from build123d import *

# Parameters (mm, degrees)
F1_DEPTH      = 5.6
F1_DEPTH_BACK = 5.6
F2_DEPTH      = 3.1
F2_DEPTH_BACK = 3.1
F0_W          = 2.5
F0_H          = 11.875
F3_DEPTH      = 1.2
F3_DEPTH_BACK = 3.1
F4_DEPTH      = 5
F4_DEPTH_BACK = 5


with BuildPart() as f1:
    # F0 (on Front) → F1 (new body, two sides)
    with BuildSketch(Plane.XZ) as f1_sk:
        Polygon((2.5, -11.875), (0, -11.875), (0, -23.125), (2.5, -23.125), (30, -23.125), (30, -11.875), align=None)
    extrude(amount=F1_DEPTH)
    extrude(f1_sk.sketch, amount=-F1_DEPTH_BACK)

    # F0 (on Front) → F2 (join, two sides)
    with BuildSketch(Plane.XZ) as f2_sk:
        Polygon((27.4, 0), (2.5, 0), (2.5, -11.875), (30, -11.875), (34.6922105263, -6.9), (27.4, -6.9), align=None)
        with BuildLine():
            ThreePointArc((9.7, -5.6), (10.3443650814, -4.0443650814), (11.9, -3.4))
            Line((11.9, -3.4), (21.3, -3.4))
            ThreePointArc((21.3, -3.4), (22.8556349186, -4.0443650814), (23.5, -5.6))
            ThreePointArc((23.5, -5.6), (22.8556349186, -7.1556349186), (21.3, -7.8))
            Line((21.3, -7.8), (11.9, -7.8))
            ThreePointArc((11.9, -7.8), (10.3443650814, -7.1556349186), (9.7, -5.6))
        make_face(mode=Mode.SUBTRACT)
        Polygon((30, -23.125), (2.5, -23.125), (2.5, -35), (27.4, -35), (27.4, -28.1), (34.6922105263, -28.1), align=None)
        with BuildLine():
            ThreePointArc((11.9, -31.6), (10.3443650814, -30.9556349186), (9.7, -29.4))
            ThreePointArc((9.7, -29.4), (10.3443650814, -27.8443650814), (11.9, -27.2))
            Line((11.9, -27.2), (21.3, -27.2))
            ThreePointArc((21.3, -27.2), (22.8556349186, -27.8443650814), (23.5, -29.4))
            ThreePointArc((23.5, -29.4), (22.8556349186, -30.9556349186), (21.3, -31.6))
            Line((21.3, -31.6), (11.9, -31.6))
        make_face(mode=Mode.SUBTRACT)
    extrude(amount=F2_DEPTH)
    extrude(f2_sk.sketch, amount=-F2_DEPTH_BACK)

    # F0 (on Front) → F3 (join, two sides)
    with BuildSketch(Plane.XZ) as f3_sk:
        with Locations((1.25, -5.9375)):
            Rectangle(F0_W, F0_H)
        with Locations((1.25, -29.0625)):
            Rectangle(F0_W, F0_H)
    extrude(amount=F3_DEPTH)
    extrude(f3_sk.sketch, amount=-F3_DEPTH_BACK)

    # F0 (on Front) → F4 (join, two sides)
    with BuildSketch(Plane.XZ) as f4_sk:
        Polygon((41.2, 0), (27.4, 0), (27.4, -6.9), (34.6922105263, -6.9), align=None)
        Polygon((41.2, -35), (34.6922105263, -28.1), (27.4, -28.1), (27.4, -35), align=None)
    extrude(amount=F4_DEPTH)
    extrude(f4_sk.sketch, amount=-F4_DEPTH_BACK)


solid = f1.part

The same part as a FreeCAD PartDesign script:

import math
import FreeCAD as App
import Part
import Sketcher
Q = App.Units.Quantity

doc = App.newDocument("Part")
params = doc.addObject("Spreadsheet::Sheet", "Params")
for row, (alias, value) in enumerate([
    ("sketch1_width", "30 mm"),
    ("sketch1_height", "11.25 mm"),
    ("pad1_length", "5.6 mm"),
    ("pad1_length2", "5.6 mm"),
    ("sketch2_radius", "2.2 mm"),
    ("sketch2_width", "24.9 mm"),
    ("sketch2_width2", "27.5 mm"),
    ("sketch2_width3", "9.4 mm"),
    ("sketch2_height", "6.9 mm"),
    ("pad2_length", "3.1 mm"),
    ("pad2_length2", "3.1 mm"),
    ("sketch3_width", "2.5 mm"),
    ("pad3_length", "1.2 mm"),
    ("pad3_length2", "3.1 mm"),
    ("sketch4_width", "13.8 mm"),
    ("sketch4_height", "6.9 mm"),
    ("pad4_length", "5 mm"),
    ("pad4_length2", "5 mm"),
], start=1):
    params.set(f"A{row}", alias)
    params.set(f"B{row}", "=" + value)
    params.setAlias(f"B{row}", alias)

body = doc.addObject("PartDesign::Body", "Body")

sketch1 = doc.addObject("Sketcher::SketchObject", "Sketch")
body.addObject(sketch1)
sketch1.AttachmentSupport = (doc.XZ_Plane, [""])
sketch1.MapMode = "FlatFace"
sketch1.addGeometry(Part.LineSegment(App.Vector(0, -12, 0), App.Vector(0, -23, 0)), False)
sketch1.addGeometry(Part.LineSegment(App.Vector(0, -23, 0), App.Vector(30, -23, 0)), False)
sketch1.addGeometry(Part.LineSegment(App.Vector(30, -23, 0), App.Vector(30, -12, 0)), False)
sketch1.addGeometry(Part.LineSegment(App.Vector(30, -12, 0), App.Vector(0, -12, 0)), False)
sketch1.addConstraint(Sketcher.Constraint("Coincident", 0, 2, 1, 1))
sketch1.addConstraint(Sketcher.Constraint("Coincident", 1, 2, 2, 1))
sketch1.addConstraint(Sketcher.Constraint("Coincident", 2, 2, 3, 1))
sketch1.addConstraint(Sketcher.Constraint("Coincident", 3, 2, 0, 1))
sketch1.addConstraint(Sketcher.Constraint("Vertical", 0))
sketch1.addConstraint(Sketcher.Constraint("Horizontal", 1))
sketch1.addConstraint(Sketcher.Constraint("Vertical", 2))
sketch1.addConstraint(Sketcher.Constraint("Horizontal", 3))
sketch1.addConstraint(Sketcher.Constraint("PointOnObject", 0, 2, -2))
sketch1.addConstraint(Sketcher.Constraint("DistanceX", 1, 1, 1, 2, Q("30 mm")))
sketch1.addConstraint(Sketcher.Constraint("DistanceY", 0, 2, 0, 1, Q("11.25 mm")))
sketch1.addConstraint(Sketcher.Constraint("DistanceY", 0, 2, -1, 1, Q("23.125 mm")))
sketch1.setExpression("Constraints[9]", "Params.sketch1_width")
sketch1.setExpression("Constraints[10]", "Params.sketch1_height")
pad1 = doc.addObject("PartDesign::Pad", "Pad")
body.addObject(pad1)
pad1.Profile = sketch1
pad1.Type = "TwoLengths"
pad1.setExpression("Length", "Params.pad1_length")
pad1.setExpression("Length2", "Params.pad1_length2")

sketch2 = doc.addObject("Sketcher::SketchObject", "Sketch001")
body.addObject(sketch2)
sketch2.AttachmentSupport = (doc.XZ_Plane, [""])
sketch2.MapMode = "FlatFace"
sketch2.addGeometry(Part.LineSegment(App.Vector(27.4, 0, 0), App.Vector(2.5, 0, 0)), False)
sketch2.addGeometry(Part.LineSegment(App.Vector(2.5, 0, 0), App.Vector(2.5, -11.9, 0)), False)
sketch2.addGeometry(Part.LineSegment(App.Vector(2.5, -11.9, 0), App.Vector(30, -11.9, 0)), False)
sketch2.addGeometry(Part.LineSegment(App.Vector(30, -11.9, 0), App.Vector(34.7, -6.9, 0)), False)
sketch2.addGeometry(Part.LineSegment(App.Vector(34.7, -6.9, 0), App.Vector(27.4, -6.9, 0)), False)
sketch2.addGeometry(Part.LineSegment(App.Vector(27.4, -6.9, 0), App.Vector(27.4, 0, 0)), False)
sketch2.addGeometry(Part.ArcOfCircle(Part.Circle(App.Vector(11.9, -5.6, 0), App.Vector(0, 0, 1), 2.2), math.radians(180), math.radians(270)), False)
sketch2.addGeometry(Part.ArcOfCircle(Part.Circle(App.Vector(11.9, -5.6, 0), App.Vector(0, 0, 1), 2.2), math.radians(90), math.radians(180)), False)
sketch2.addGeometry(Part.LineSegment(App.Vector(11.9, -3.4, 0), App.Vector(21.3, -3.4, 0)), False)
sketch2.addGeometry(Part.ArcOfCircle(Part.Circle(App.Vector(21.3, -5.6, 0), App.Vector(0, 0, 1), 2.2), math.radians(0), math.radians(90)), False)
sketch2.addGeometry(Part.ArcOfCircle(Part.Circle(App.Vector(21.3, -5.6, 0), App.Vector(0, 0, 1), 2.2), math.radians(-90), math.radians(0)), False)
sketch2.addGeometry(Part.LineSegment(App.Vector(21.3, -7.8, 0), App.Vector(11.9, -7.8, 0)), False)
sketch2.addGeometry(Part.LineSegment(App.Vector(30, -23.1, 0), App.Vector(2.5, -23.1, 0)), False)
sketch2.addGeometry(Part.LineSegment(App.Vector(2.5, -23.1, 0), App.Vector(2.5, -35, 0)), False)
sketch2.addGeometry(Part.LineSegment(App.Vector(2.5, -35, 0), App.Vector(27.4, -35, 0)), False)
sketch2.addGeometry(Part.LineSegment(App.Vector(27.4, -35, 0), App.Vector(27.4, -28.1, 0)), False)
sketch2.addGeometry(Part.LineSegment(App.Vector(27.4, -28.1, 0), App.Vector(34.7, -28.1, 0)), False)
sketch2.addGeometry(Part.LineSegment(App.Vector(34.7, -28.1, 0), App.Vector(30, -23.1, 0)), False)
sketch2.addGeometry(Part.LineSegment(App.Vector(21.3, -31.6, 0), App.Vector(11.9, -31.6, 0)), False)
sketch2.addGeometry(Part.ArcOfCircle(Part.Circle(App.Vector(11.9, -29.4, 0), App.Vector(0, 0, 1), 2.2), math.radians(180), math.radians(270)), False)
sketch2.addGeometry(Part.ArcOfCircle(Part.Circle(App.Vector(11.9, -29.4, 0), App.Vector(0, 0, 1), 2.2), math.radians(90), math.radians(180)), False)
sketch2.addGeometry(Part.LineSegment(App.Vector(11.9, -27.2, 0), App.Vector(21.3, -27.2, 0)), False)
sketch2.addGeometry(Part.ArcOfCircle(Part.Circle(App.Vector(21.3, -29.4, 0), App.Vector(0, 0, 1), 2.2), math.radians(0), math.radians(90)), False)
sketch2.addGeometry(Part.ArcOfCircle(Part.Circle(App.Vector(21.3, -29.4, 0), App.Vector(0, 0, 1), 2.2), math.radians(-90), math.radians(0)), False)
sketch2.addConstraint(Sketcher.Constraint("Coincident", 0, 2, 1, 1))
sketch2.addConstraint(Sketcher.Constraint("Coincident", 1, 2, 2, 1))
sketch2.addConstraint(Sketcher.Constraint("Coincident", 2, 2, 3, 1))
sketch2.addConstraint(Sketcher.Constraint("Coincident", 3, 2, 4, 1))
sketch2.addConstraint(Sketcher.Constraint("Coincident", 4, 2, 5, 1))
sketch2.addConstraint(Sketcher.Constraint("Coincident", 5, 2, 0, 1))
sketch2.addConstraint(Sketcher.Constraint("Tangent", 6, 1, 7, 2))
sketch2.addConstraint(Sketcher.Constraint("Tangent", 7, 1, 8, 1))
sketch2.addConstraint(Sketcher.Constraint("Tangent", 8, 2, 9, 2))
sketch2.addConstraint(Sketcher.Constraint("Tangent", 9, 1, 10, 2))
sketch2.addConstraint(Sketcher.Constraint("Tangent", 10, 1, 11, 1))
sketch2.addConstraint(Sketcher.Constraint("Tangent", 11, 2, 6, 2))
sketch2.addConstraint(Sketcher.Constraint("Coincident", 12, 2, 13, 1))
sketch2.addConstraint(Sketcher.Constraint("Coincident", 13, 2, 14, 1))
sketch2.addConstraint(Sketcher.Constraint("Coincident", 14, 2, 15, 1))
sketch2.addConstraint(Sketcher.Constraint("Coincident", 15, 2, 16, 1))
sketch2.addConstraint(Sketcher.Constraint("Coincident", 16, 2, 17, 1))
sketch2.addConstraint(Sketcher.Constraint("Coincident", 17, 2, 12, 1))
sketch2.addConstraint(Sketcher.Constraint("Tangent", 18, 2, 19, 2))
sketch2.addConstraint(Sketcher.Constraint("Tangent", 19, 1, 20, 2))
sketch2.addConstraint(Sketcher.Constraint("Tangent", 20, 1, 21, 1))
sketch2.addConstraint(Sketcher.Constraint("Tangent", 21, 2, 22, 2))
sketch2.addConstraint(Sketcher.Constraint("Tangent", 22, 1, 23, 2))
sketch2.addConstraint(Sketcher.Constraint("Tangent", 23, 1, 18, 1))
sketch2.addConstraint(Sketcher.Constraint("Horizontal", 0))
sketch2.addConstraint(Sketcher.Constraint("Vertical", 1))
sketch2.addConstraint(Sketcher.Constraint("Horizontal", 2))
sketch2.addConstraint(Sketcher.Constraint("Horizontal", 4))
sketch2.addConstraint(Sketcher.Constraint("Vertical", 5))
sketch2.addConstraint(Sketcher.Constraint("Horizontal", 8))
sketch2.addConstraint(Sketcher.Constraint("Horizontal", 11))
sketch2.addConstraint(Sketcher.Constraint("Horizontal", 12))
sketch2.addConstraint(Sketcher.Constraint("Vertical", 13))
sketch2.addConstraint(Sketcher.Constraint("Horizontal", 14))
sketch2.addConstraint(Sketcher.Constraint("Vertical", 15))
sketch2.addConstraint(Sketcher.Constraint("Horizontal", 16))
sketch2.addConstraint(Sketcher.Constraint("Horizontal", 18))
sketch2.addConstraint(Sketcher.Constraint("Horizontal", 21))
sketch2.addConstraint(Sketcher.Constraint("Equal", 6, 7))
sketch2.addConstraint(Sketcher.Constraint("Equal", 7, 9))
sketch2.addConstraint(Sketcher.Constraint("Equal", 10, 19))
sketch2.addConstraint(Sketcher.Constraint("Equal", 19, 20))
sketch2.addConstraint(Sketcher.Constraint("Equal", 20, 22))
sketch2.addConstraint(Sketcher.Constraint("PointOnObject", 0, 2, -1))
sketch2.addConstraint(Sketcher.Constraint("Horizontal", 10, 3, 6, 1))
sketch2.addConstraint(Sketcher.Constraint("Horizontal", 6, 1, 9, 1))
sketch2.addConstraint(Sketcher.Constraint("Horizontal", 23, 3, 19, 1))
sketch2.addConstraint(Sketcher.Constraint("Horizontal", 19, 1, 22, 1))
sketch2.addConstraint(Sketcher.Constraint("Vertical", 7, 3, 19, 3))
sketch2.addConstraint(Sketcher.Constraint("Vertical", 10, 3, 22, 3))
sketch2.addConstraint(Sketcher.Constraint("Vertical", 1, 2, 12, 2))
sketch2.addConstraint(Sketcher.Constraint("Vertical", 5, 2, 14, 2))
sketch2.addConstraint(Sketcher.Constraint("Vertical", 3, 2, 16, 2))
sketch2.addConstraint(Sketcher.Constraint("Vertical", 2, 2, 17, 2))
sketch2.addConstraint(Sketcher.Constraint("Equal", 1, 13))
sketch2.addConstraint(Sketcher.Constraint("Equal", 5, 15))
sketch2.addConstraint(Sketcher.Constraint("Radius", 6, Q("2.2 mm")))
sketch2.addConstraint(Sketcher.Constraint("DistanceX", 0, 2, 0, 1, Q("24.9 mm")))
sketch2.addConstraint(Sketcher.Constraint("DistanceX", 2, 1, 2, 2, Q("27.5 mm")))
sketch2.addConstraint(Sketcher.Constraint("DistanceX", 8, 1, 8, 2, Q("9.4 mm")))
sketch2.addConstraint(Sketcher.Constraint("DistanceY", 5, 1, 5, 2, Q("6.9 mm")))
sketch2.addConstraint(Sketcher.Constraint("DistanceX", -1, 1, 2, 2, Q("30 mm")))
sketch2.addConstraint(Sketcher.Constraint("DistanceY", 13, 2, -1, 1, Q("35 mm")))
sketch2.addConstraint(Sketcher.Constraint("DistanceX", -1, 1, 6, 3, Q("11.9 mm")))
sketch2.addConstraint(Sketcher.Constraint("DistanceY", 6, 3, -1, 1, Q("5.6 mm")))
sketch2.addConstraint(Sketcher.Constraint("DistanceY", 19, 3, -1, 1, Q("29.4 mm")))
sketch2.addConstraint(Sketcher.Constraint("DistanceY", 1, 2, 1, 1, Q("11.875 mm")))
sketch2.addConstraint(Sketcher.Constraint("DistanceX", 4, 2, 4, 1, Q("7.292211 mm")))
sketch2.setExpression("Constraints[56]", "Params.sketch2_radius")
sketch2.setExpression("Constraints[57]", "Params.sketch2_width")
sketch2.setExpression("Constraints[58]", "Params.sketch2_width2")
sketch2.setExpression("Constraints[59]", "Params.sketch2_width3")
sketch2.setExpression("Constraints[60]", "Params.sketch2_height")
pad2 = doc.addObject("PartDesign::Pad", "Pad001")
body.addObject(pad2)
pad2.Profile = sketch2
pad2.Type = "TwoLengths"
pad2.setExpression("Length", "Params.pad2_length")
pad2.setExpression("Length2", "Params.pad2_length2")

sketch3 = doc.addObject("Sketcher::SketchObject", "Sketch002")
body.addObject(sketch3)
sketch3.AttachmentSupport = (doc.XZ_Plane, [""])
sketch3.MapMode = "FlatFace"
sketch3.addGeometry(Part.LineSegment(App.Vector(0, 0, 0), App.Vector(0, -11.9, 0)), False)
sketch3.addGeometry(Part.LineSegment(App.Vector(0, -11.9, 0), App.Vector(2.5, -11.9, 0)), False)
sketch3.addGeometry(Part.LineSegment(App.Vector(2.5, -11.9, 0), App.Vector(2.5, 0, 0)), False)
sketch3.addGeometry(Part.LineSegment(App.Vector(2.5, 0, 0), App.Vector(0, 0, 0)), False)
sketch3.addGeometry(Part.LineSegment(App.Vector(0, -23.1, 0), App.Vector(0, -35, 0)), False)
sketch3.addGeometry(Part.LineSegment(App.Vector(0, -35, 0), App.Vector(2.5, -35, 0)), False)
sketch3.addGeometry(Part.LineSegment(App.Vector(2.5, -35, 0), App.Vector(2.5, -23.1, 0)), False)
sketch3.addGeometry(Part.LineSegment(App.Vector(2.5, -23.1, 0), App.Vector(0, -23.1, 0)), False)
sketch3.addConstraint(Sketcher.Constraint("Coincident", 0, 2, 1, 1))
sketch3.addConstraint(Sketcher.Constraint("Coincident", 1, 2, 2, 1))
sketch3.addConstraint(Sketcher.Constraint("Coincident", 2, 2, 3, 1))
sketch3.addConstraint(Sketcher.Constraint("Coincident", 3, 2, 0, 1))
sketch3.addConstraint(Sketcher.Constraint("Coincident", 4, 2, 5, 1))
sketch3.addConstraint(Sketcher.Constraint("Coincident", 5, 2, 6, 1))
sketch3.addConstraint(Sketcher.Constraint("Coincident", 6, 2, 7, 1))
sketch3.addConstraint(Sketcher.Constraint("Coincident", 7, 2, 4, 1))
sketch3.addConstraint(Sketcher.Constraint("Vertical", 0))
sketch3.addConstraint(Sketcher.Constraint("Horizontal", 1))
sketch3.addConstraint(Sketcher.Constraint("Vertical", 2))
sketch3.addConstraint(Sketcher.Constraint("Horizontal", 3))
sketch3.addConstraint(Sketcher.Constraint("Vertical", 4))
sketch3.addConstraint(Sketcher.Constraint("Horizontal", 5))
sketch3.addConstraint(Sketcher.Constraint("Vertical", 6))
sketch3.addConstraint(Sketcher.Constraint("Horizontal", 7))
sketch3.addConstraint(Sketcher.Constraint("Coincident", 3, 2, -1, 1))
sketch3.addConstraint(Sketcher.Constraint("PointOnObject", 4, 2, -2))
sketch3.addConstraint(Sketcher.Constraint("Vertical", 2, 2, 5, 2))
sketch3.addConstraint(Sketcher.Constraint("Equal", 2, 4))
sketch3.addConstraint(Sketcher.Constraint("DistanceX", 1, 1, 1, 2, Q("2.5 mm")))
sketch3.addConstraint(Sketcher.Constraint("DistanceY", 4, 2, -1, 1, Q("35 mm")))
sketch3.addConstraint(Sketcher.Constraint("DistanceY", 0, 2, 0, 1, Q("11.875 mm")))
sketch3.setExpression("Constraints[20]", "Params.sketch3_width")
pad3 = doc.addObject("PartDesign::Pad", "Pad002")
body.addObject(pad3)
pad3.Profile = sketch3
pad3.Type = "TwoLengths"
pad3.setExpression("Length", "Params.pad3_length")
pad3.setExpression("Length2", "Params.pad3_length2")

sketch4 = doc.addObject("Sketcher::SketchObject", "Sketch003")
body.addObject(sketch4)
sketch4.AttachmentSupport = (doc.XZ_Plane, [""])
sketch4.MapMode = "FlatFace"
sketch4.addGeometry(Part.LineSegment(App.Vector(41, 0, 0), App.Vector(27, 0, 0)), False)
sketch4.addGeometry(Part.LineSegment(App.Vector(27, 0, 0), App.Vector(27, -7, 0)), False)
sketch4.addGeometry(Part.LineSegment(App.Vector(27, -7, 0), App.Vector(35, -7, 0)), False)
sketch4.addGeometry(Part.LineSegment(App.Vector(35, -7, 0), App.Vector(41, 0, 0)), False)
sketch4.addGeometry(Part.LineSegment(App.Vector(41, -35, 0), App.Vector(35, -28, 0)), False)
sketch4.addGeometry(Part.LineSegment(App.Vector(35, -28, 0), App.Vector(27, -28, 0)), False)
sketch4.addGeometry(Part.LineSegment(App.Vector(27, -28, 0), App.Vector(27, -35, 0)), False)
sketch4.addGeometry(Part.LineSegment(App.Vector(27, -35, 0), App.Vector(41, -35, 0)), False)
sketch4.addConstraint(Sketcher.Constraint("Coincident", 0, 2, 1, 1))
sketch4.addConstraint(Sketcher.Constraint("Coincident", 1, 2, 2, 1))
sketch4.addConstraint(Sketcher.Constraint("Coincident", 2, 2, 3, 1))
sketch4.addConstraint(Sketcher.Constraint("Coincident", 3, 2, 0, 1))
sketch4.addConstraint(Sketcher.Constraint("Coincident", 4, 2, 5, 1))
sketch4.addConstraint(Sketcher.Constraint("Coincident", 5, 2, 6, 1))
sketch4.addConstraint(Sketcher.Constraint("Coincident", 6, 2, 7, 1))
sketch4.addConstraint(Sketcher.Constraint("Coincident", 7, 2, 4, 1))
sketch4.addConstraint(Sketcher.Constraint("Horizontal", 0))
sketch4.addConstraint(Sketcher.Constraint("Vertical", 1))
sketch4.addConstraint(Sketcher.Constraint("Horizontal", 2))
sketch4.addConstraint(Sketcher.Constraint("Horizontal", 5))
sketch4.addConstraint(Sketcher.Constraint("Vertical", 6))
sketch4.addConstraint(Sketcher.Constraint("Horizontal", 7))
sketch4.addConstraint(Sketcher.Constraint("PointOnObject", 0, 2, -1))
sketch4.addConstraint(Sketcher.Constraint("Vertical", 2, 2, 4, 2))
sketch4.addConstraint(Sketcher.Constraint("Vertical", 1, 2, 5, 2))
sketch4.addConstraint(Sketcher.Constraint("Vertical", 3, 2, 7, 2))
sketch4.addConstraint(Sketcher.Constraint("Equal", 1, 6))
sketch4.addConstraint(Sketcher.Constraint("DistanceX", 0, 2, 0, 1, Q("13.8 mm")))
sketch4.addConstraint(Sketcher.Constraint("DistanceY", 1, 2, 1, 1, Q("6.9 mm")))
sketch4.addConstraint(Sketcher.Constraint("DistanceY", 6, 2, -1, 1, Q("35 mm")))
sketch4.addConstraint(Sketcher.Constraint("DistanceX", -1, 1, 0, 2, Q("27.4 mm")))
sketch4.addConstraint(Sketcher.Constraint("DistanceX", 2, 1, 2, 2, Q("7.292211 mm")))
sketch4.setExpression("Constraints[19]", "Params.sketch4_width")
sketch4.setExpression("Constraints[20]", "Params.sketch4_height")
pad4 = doc.addObject("PartDesign::Pad", "Pad003")
body.addObject(pad4)
pad4.Profile = sketch4
pad4.Type = "TwoLengths"
pad4.setExpression("Length", "Params.pad4_length")
pad4.setExpression("Length2", "Params.pad4_length2")

doc.recompute()
